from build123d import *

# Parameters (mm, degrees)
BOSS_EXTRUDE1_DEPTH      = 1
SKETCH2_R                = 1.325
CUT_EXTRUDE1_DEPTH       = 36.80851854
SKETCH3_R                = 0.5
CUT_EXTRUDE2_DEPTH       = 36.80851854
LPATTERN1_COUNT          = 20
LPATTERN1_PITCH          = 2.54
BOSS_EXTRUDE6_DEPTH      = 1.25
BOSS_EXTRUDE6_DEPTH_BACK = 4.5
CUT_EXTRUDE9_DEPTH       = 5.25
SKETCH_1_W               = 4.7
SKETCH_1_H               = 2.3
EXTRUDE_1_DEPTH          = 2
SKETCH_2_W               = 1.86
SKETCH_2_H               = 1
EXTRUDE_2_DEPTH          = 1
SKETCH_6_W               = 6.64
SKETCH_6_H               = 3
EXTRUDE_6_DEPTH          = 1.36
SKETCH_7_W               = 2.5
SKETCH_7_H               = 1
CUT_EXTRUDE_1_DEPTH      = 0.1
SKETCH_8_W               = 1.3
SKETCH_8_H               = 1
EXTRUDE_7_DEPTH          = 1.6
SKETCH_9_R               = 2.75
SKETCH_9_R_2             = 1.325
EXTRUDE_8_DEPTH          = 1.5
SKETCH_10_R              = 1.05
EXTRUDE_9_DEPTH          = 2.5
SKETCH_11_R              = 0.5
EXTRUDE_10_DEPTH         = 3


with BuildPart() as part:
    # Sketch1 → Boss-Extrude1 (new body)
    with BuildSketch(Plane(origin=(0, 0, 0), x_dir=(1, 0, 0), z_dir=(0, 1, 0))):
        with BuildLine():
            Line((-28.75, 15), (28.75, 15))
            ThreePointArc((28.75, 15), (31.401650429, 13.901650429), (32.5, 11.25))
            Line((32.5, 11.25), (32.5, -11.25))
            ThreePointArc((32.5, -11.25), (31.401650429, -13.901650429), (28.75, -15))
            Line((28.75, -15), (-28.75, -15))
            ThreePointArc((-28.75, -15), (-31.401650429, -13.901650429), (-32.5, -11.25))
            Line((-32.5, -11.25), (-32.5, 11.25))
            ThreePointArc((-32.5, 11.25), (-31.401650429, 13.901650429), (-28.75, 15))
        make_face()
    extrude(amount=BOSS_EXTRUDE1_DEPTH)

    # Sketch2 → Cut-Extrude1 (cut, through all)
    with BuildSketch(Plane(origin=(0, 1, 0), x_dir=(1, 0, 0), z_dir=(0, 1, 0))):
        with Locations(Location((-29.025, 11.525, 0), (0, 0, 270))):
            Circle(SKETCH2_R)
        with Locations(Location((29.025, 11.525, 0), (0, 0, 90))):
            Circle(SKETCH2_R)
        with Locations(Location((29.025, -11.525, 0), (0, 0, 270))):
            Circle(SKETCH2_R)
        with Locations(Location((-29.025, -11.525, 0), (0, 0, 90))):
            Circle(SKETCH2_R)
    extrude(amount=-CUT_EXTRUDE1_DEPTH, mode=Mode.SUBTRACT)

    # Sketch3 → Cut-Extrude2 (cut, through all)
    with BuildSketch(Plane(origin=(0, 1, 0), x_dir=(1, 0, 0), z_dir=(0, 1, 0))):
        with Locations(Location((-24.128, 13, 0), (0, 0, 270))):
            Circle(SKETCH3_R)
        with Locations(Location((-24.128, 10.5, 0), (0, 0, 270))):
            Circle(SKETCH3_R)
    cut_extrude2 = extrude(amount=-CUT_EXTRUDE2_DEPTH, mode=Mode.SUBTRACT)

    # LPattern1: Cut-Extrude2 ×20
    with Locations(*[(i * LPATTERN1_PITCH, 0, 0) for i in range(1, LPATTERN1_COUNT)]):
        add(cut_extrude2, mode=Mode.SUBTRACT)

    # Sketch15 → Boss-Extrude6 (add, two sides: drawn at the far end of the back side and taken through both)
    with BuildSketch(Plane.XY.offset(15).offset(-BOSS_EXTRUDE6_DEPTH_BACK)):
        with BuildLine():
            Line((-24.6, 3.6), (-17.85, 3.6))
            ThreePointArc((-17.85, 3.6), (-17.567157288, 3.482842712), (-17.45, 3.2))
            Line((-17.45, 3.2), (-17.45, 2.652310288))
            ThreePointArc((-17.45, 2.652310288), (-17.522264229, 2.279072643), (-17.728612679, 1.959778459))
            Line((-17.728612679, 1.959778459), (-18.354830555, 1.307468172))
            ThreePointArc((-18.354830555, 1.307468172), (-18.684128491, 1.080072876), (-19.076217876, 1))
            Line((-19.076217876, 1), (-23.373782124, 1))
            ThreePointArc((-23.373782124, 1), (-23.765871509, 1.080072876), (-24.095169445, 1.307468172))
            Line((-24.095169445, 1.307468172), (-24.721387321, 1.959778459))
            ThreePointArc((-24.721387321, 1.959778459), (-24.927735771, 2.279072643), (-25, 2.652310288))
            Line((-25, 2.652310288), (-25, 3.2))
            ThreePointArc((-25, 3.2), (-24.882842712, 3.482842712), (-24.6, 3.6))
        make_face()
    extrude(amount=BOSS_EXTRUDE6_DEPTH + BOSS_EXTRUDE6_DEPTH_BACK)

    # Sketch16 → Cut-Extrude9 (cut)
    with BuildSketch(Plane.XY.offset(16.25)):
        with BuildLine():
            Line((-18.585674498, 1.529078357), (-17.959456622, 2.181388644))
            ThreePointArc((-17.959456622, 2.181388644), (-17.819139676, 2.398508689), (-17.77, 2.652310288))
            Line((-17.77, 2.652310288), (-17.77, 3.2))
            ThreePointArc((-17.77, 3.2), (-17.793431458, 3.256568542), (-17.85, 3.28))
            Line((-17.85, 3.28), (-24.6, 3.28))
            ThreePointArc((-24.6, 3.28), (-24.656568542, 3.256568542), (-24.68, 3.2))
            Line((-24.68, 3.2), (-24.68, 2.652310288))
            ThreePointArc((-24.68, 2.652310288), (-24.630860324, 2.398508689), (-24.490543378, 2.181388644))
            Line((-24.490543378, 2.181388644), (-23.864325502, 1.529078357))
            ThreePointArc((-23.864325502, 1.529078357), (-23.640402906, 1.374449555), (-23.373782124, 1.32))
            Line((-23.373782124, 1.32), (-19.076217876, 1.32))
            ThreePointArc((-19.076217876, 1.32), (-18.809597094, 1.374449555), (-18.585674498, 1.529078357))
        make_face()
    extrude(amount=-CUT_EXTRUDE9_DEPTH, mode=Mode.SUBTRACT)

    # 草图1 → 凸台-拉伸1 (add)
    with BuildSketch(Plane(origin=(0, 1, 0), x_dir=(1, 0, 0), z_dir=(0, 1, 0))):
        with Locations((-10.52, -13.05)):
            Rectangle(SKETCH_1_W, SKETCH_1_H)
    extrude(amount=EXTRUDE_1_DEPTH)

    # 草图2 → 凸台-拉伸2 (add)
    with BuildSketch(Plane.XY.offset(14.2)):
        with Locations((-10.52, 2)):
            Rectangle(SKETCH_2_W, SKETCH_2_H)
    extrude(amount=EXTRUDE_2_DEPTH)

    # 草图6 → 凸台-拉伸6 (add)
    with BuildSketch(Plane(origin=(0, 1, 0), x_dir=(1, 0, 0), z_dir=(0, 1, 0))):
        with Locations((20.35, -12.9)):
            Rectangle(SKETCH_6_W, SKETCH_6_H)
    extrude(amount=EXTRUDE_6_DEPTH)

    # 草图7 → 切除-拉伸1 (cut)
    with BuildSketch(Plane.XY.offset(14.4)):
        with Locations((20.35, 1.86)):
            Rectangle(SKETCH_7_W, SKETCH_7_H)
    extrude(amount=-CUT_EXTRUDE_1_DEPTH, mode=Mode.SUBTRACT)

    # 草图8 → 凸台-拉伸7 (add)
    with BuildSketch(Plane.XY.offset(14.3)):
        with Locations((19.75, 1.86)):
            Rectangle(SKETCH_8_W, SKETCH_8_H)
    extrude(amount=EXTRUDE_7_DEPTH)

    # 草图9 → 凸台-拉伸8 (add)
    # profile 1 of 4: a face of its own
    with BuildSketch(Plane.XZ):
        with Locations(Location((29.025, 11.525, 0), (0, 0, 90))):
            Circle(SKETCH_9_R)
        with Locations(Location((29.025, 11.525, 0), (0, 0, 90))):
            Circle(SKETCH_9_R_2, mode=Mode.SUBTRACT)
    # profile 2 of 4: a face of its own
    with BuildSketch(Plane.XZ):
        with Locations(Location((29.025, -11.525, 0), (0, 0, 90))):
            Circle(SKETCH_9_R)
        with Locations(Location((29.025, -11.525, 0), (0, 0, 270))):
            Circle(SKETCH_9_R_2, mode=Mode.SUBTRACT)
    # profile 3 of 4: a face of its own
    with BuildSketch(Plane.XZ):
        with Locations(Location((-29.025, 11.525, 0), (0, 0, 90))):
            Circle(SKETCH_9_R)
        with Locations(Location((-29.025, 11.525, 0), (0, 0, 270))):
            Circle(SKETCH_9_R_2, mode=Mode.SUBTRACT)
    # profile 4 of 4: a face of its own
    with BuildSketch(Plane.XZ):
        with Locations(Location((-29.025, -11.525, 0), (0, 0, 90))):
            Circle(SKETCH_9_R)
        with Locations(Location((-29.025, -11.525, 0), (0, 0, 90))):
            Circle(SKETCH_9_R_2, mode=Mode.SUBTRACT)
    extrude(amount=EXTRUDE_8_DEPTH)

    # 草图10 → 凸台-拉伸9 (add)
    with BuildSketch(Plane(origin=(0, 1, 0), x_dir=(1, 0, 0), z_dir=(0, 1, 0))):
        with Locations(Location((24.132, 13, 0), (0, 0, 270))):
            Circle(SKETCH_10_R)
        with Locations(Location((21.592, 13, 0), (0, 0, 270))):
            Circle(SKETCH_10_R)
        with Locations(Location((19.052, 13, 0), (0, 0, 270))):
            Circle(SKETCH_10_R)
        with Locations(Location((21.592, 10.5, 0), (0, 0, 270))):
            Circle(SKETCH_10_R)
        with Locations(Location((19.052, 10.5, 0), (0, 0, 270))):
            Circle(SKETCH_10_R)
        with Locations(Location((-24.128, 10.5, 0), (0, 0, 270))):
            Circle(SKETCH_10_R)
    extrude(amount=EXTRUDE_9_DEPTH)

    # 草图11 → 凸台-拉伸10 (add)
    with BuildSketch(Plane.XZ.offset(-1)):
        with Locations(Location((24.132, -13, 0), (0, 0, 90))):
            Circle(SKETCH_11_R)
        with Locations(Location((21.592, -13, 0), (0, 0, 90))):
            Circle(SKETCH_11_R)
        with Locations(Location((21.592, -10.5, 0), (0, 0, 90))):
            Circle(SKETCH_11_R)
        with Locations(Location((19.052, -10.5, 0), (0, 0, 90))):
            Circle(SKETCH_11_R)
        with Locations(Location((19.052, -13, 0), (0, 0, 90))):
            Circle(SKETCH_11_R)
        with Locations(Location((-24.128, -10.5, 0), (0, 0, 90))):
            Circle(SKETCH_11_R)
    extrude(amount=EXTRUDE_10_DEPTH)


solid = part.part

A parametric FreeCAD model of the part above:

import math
import FreeCAD as App
import Part
import Sketcher

V = App.Vector
Q = App.Units.Quantity

doc = App.newDocument("Part")
body = doc.addObject("PartDesign::Body", "Body")

sketch1 = doc.addObject("Sketcher::SketchObject", "Sketch")
body.addObject(sketch1)
sketch1.AttachmentSupport = (doc.XZ_Plane, [""])
sketch1.MapMode = "FlatFace"
sketch1.addGeometry(Part.LineSegment(V(28.8, -15, 0), V(-28.8, -15, 0)), False)
sketch1.addGeometry(Part.ArcOfCircle(Part.Circle(V(-28.7, -11.2, 0), V(0, 0, 1), 3.8), math.radians(-180), math.radians(-90)), False)
sketch1.addGeometry(Part.LineSegment(V(-32.5, -11.2, 0), V(-32.5, 11.2, 0)), False)
sketch1.addGeometry(Part.ArcOfCircle(Part.Circle(V(-28.7, 11.2, 0), V(0, 0, 1), 3.8), math.radians(90), math.radians(180)), False)
sketch1.addGeometry(Part.LineSegment(V(-28.8, 15, 0), V(28.8, 15, 0)), False)
sketch1.addGeometry(Part.ArcOfCircle(Part.Circle(V(28.7, 11.2, 0), V(0, 0, 1), 3.8), math.radians(0), math.radians(90)), False)
sketch1.addGeometry(Part.LineSegment(V(32.5, 11.2, 0), V(32.5, -11.2, 0)), False)
sketch1.addGeometry(Part.ArcOfCircle(Part.Circle(V(28.7, -11.2, 0), V(0, 0, 1), 3.8), math.radians(-90), math.radians(0)), False)
sketch1.addConstraint(Sketcher.Constraint("Tangent", 0, 2, 1, 2))
sketch1.addConstraint(Sketcher.Constraint("Tangent", 1, 1, 2, 1))
sketch1.addConstraint(Sketcher.Constraint("Tangent", 2, 2, 3, 2))
sketch1.addConstraint(Sketcher.Constraint("Tangent", 3, 1, 4, 1))
sketch1.addConstraint(Sketcher.Constraint("Tangent", 4, 2, 5, 2))
sketch1.addConstraint(Sketcher.Constraint("Tangent", 5, 1, 6, 1))
sketch1.addConstraint(Sketcher.Constraint("Tangent", 6, 2, 7, 2))
sketch1.addConstraint(Sketcher.Constraint("Tangent", 7, 1, 0, 1))
sketch1.addConstraint(Sketcher.Constraint("Horizontal", 0))
sketch1.addConstraint(Sketcher.Constraint("Vertical", 2))
sketch1.addConstraint(Sketcher.Constraint("Horizontal", 4))
sketch1.addConstraint(Sketcher.Constraint("Vertical", 6))
sketch1.addConstraint(Sketcher.Constraint("Equal", 1, 3))
sketch1.addConstraint(Sketcher.Constraint("Equal", 3, 5))
sketch1.addConstraint(Sketcher.Constraint("Equal", 5, 7))
sketch1.addConstraint(Sketcher.Constraint("Symmetric", 1, 3, 5, 3, -1, 1))
sketch1.addConstraint(Sketcher.Constraint("Radius", 1, Q("3.75 mm")))
sketch1.addConstraint(Sketcher.Constraint("DistanceX", 0, 2, 0, 1, Q("57.5 mm")))
sketch1.addConstraint(Sketcher.Constraint("DistanceY", 2, 1, 2, 2, Q("22.5 mm")))
pad1 = doc.addObject("PartDesign::Pad", "Pad")
body.addObject(pad1)
pad1.Profile = sketch1
pad1.Length = 1
pad1.Reversed = True

sketch2 = doc.addObject("Sketcher::SketchObject", "Sketch001")
body.addObject(sketch2)
sketch2.AttachmentSupport = (doc.XZ_Plane, [""])
sketch2.MapMode = "FlatFace"
sketch2.AttachmentOffset = App.Placement(V(0, 0, -1), App.Rotation())
sketch2.addGeometry(Part.Circle(V(-29, -11.5, 0), V(0, 0, 1), 1.3), False)
sketch2.addGeometry(Part.Circle(V(29, -11.5, 0), V(0, 0, 1), 1.3), False)
sketch2.addGeometry(Part.Circle(V(29, 11.5, 0), V(0, 0, 1), 1.3), False)
sketch2.addGeometry(Part.Circle(V(-29, 11.5, 0), V(0, 0, 1), 1.3), False)
sketch2.addConstraint(Sketcher.Constraint("Equal", 0, 1))
sketch2.addConstraint(Sketcher.Constraint("Equal", 1, 2))
sketch2.addConstraint(Sketcher.Constraint("Equal", 2, 3))
sketch2.addConstraint(Sketcher.Constraint("Symmetric", 0, 3, 2, 3, -1, 1))
sketch2.addConstraint(Sketcher.Constraint("Symmetric", 1, 3, 3, 3, -1, 1))
sketch2.addConstraint(Sketcher.Constraint("Symmetric", 0, 3, 1, 3, -2))
sketch2.addConstraint(Sketcher.Constraint("Diameter", 0, Q("2.65 mm")))
sketch2.addConstraint(Sketcher.Constraint("DistanceX", 0, 3, 1, 3, Q("58.05 mm")))
sketch2.addConstraint(Sketcher.Constraint("DistanceY", 1, 3, 2, 3, Q("23.05 mm")))
pocket1 = doc.addObject("PartDesign::Pocket", "Pocket")
body.addObject(pocket1)
pocket1.Profile = sketch2
pocket1.Type = "ThroughAll"
pocket1.Reversed = True

sketch3 = doc.addObject("Sketcher::SketchObject", "Sketch002")
body.addObject(sketch3)
sketch3.AttachmentSupport = (doc.XZ_Plane, [""])
sketch3.MapMode = "FlatFace"
sketch3.AttachmentOffset = App.Placement(V(0, 0, -1), App.Rotation())
sketch3.addGeometry(Part.Circle(V(-24.1, -13, 0), V(0, 0, 1), 0.5), False)
sketch3.addGeometry(Part.Circle(V(-24.1, -10.5, 0), V(0, 0, 1), 0.5), False)
sketch3.addConstraint(Sketcher.Constraint("Equal", 0, 1))
sketch3.addConstraint(Sketcher.Constraint("Vertical", 0, 3, 1, 3))
sketch3.addConstraint(Sketcher.Constraint("Diameter", 0, Q("1 mm")))
sketch3.addConstraint(Sketcher.Constraint("DistanceY", 0, 3, -1, 1, Q("13 mm")))
sketch3.addConstraint(Sketcher.Constraint("DistanceY", 1, 3, -1, 1, Q("10.5 mm")))
sketch3.addConstraint(Sketcher.Constraint("DistanceX", 0, 3, -1, 1, Q("24.128 mm")))
pocket2 = doc.addObject("PartDesign::Pocket", "Pocket001")
body.addObject(pocket2)
pocket2.Profile = sketch3
pocket2.Type = "ThroughAll"
pocket2.Reversed = True
doc.recompute()

linearpattern = doc.addObject("PartDesign::LinearPattern", "LinearPattern")
body.addObject(linearpattern)
linearpattern.Originals = [pocket2]
linearpattern.Direction = (doc.X_Axis, [""])
linearpattern.Mode = "offset"
linearpattern.Offset = 2.54
linearpattern.Occurrences = 20
body.Tip = linearpattern

sketch4 = doc.addObject("Sketcher::SketchObject", "Sketch003")
body.addObject(sketch4)
sketch4.AttachmentSupport = (doc.XY_Plane, [""])
sketch4.MapMode = "FlatFace"
sketch4.AttachmentOffset = App.Placement(V(0, 0, 15), App.Rotation())
sketch4.addGeometry(Part.LineSegment(V(-17.85, 3.6, 0), V(-24.6, 3.6, 0)), False)
sketch4.addGeometry(Part.ArcOfCircle(Part.Circle(V(-24.6, 3.2, 0), V(0, 0, 1), 0.4), math.radians(90), math.radians(180)), False)
sketch4.addGeometry(Part.LineSegment(V(-25, 3.2, 0), V(-25, 2.65, 0)), False)
sketch4.addGeometry(Part.ArcOfCircle(Part.Circle(V(-24, 2.65, 0), V(0, 0, 1), 1), math.radians(180), math.radians(224)), False)
sketch4.addGeometry(Part.LineSegment(V(-24.72, 1.96, 0), V(-24.1, 1.31, 0)), False)
sketch4.addGeometry(Part.ArcOfCircle(Part.Circle(V(-23.37, 2, 0), V(0, 0, 1), 1), math.radians(-136), math.radians(-90)), False)
sketch4.addGeometry(Part.LineSegment(V(-23.37, 1, 0), V(-19.08, 1, 0)), False)
sketch4.addGeometry(Part.ArcOfCircle(Part.Circle(V(-19.08, 2, 0), V(0, 0, 1), 1), math.radians(-90), math.radians(-44)), False)
sketch4.addGeometry(Part.LineSegment(V(-18.35, 1.31, 0), V(-17.73, 1.96, 0)), False)
sketch4.addGeometry(Part.ArcOfCircle(Part.Circle(V(-18.45, 2.65, 0), V(0, 0, 1), 1), math.radians(-44), math.radians(0)), False)
sketch4.addGeometry(Part.LineSegment(V(-17.45, 2.65, 0), V(-17.45, 3.2, 0)), False)
sketch4.addGeometry(Part.ArcOfCircle(Part.Circle(V(-17.85, 3.2, 0), V(0, 0, 1), 0.4), math.radians(0), math.radians(90)), False)
sketch4.addConstraint(Sketcher.Constraint("Tangent", 0, 2, 1, 1))
sketch4.addConstraint(Sketcher.Constraint("Tangent", 1, 2, 2, 1))
sketch4.addConstraint(Sketcher.Constraint("Tangent", 2, 2, 3, 1))
sketch4.addConstraint(Sketcher.Constraint("Tangent", 3, 2, 4, 1))
sketch4.addConstraint(Sketcher.Constraint("Tangent", 4, 2, 5, 1))
sketch4.addConstraint(Sketcher.Constraint("Tangent", 5, 2, 6, 1))
sketch4.addConstraint(Sketcher.Constraint("Tangent", 6, 2, 7, 1))
sketch4.addConstraint(Sketcher.Constraint("Tangent", 7, 2, 8, 1))
sketch4.addConstraint(Sketcher.Constraint("Tangent", 8, 2, 9, 1))
sketch4.addConstraint(Sketcher.Constraint("Tangent", 9, 2, 10, 1))
sketch4.addConstraint(Sketcher.Constraint("Tangent", 10, 2, 11, 1))
sketch4.addConstraint(Sketcher.Constraint("Tangent", 11, 2, 0, 1))
sketch4.addConstraint(Sketcher.Constraint("Horizontal", 0))
sketch4.addConstraint(Sketcher.Constraint("Vertical", 2))
sketch4.addConstraint(Sketcher.Constraint("Horizontal", 6))
sketch4.addConstraint(Sketcher.Constraint("Vertical", 10))
sketch4.addConstraint(Sketcher.Constraint("Equal", 3, 5))
sketch4.addConstraint(Sketcher.Constraint("Equal", 5, 7))
sketch4.addConstraint(Sketcher.Constraint("Equal", 7, 9))
sketch4.addConstraint(Sketcher.Constraint("Equal", 1, 11))
sketch4.addConstraint(Sketcher.Constraint("Horizontal", 3, 3, 9, 3))
sketch4.addConstraint(Sketcher.Constraint("Horizontal", 4, 2, 7, 2))
sketch4.addConstraint(Sketcher.Constraint("Radius", 3, Q("1 mm")))
sketch4.addConstraint(Sketcher.Constraint("Radius", 1, Q("0.4 mm")))
sketch4.addConstraint(Sketcher.Constraint("DistanceX", 3, 3, -1, 1, Q("24 mm")))
sketch4.addConstraint(Sketcher.Constraint("DistanceY", -1, 1, 5, 3, Q("2 mm")))
sketch4.addConstraint(Sketcher.Constraint("DistanceX", 0, 2, 0, 1, Q("6.75 mm")))
sketch4.addConstraint(Sketcher.Constraint("DistanceY", -1, 1, 1, 3, Q("3.2 mm")))
sketch4.addConstraint(Sketcher.Constraint("DistanceY", 2, 2, 2, 1, Q("0.54769 mm")))
sketch4.addConstraint(Sketcher.Constraint("DistanceX", 6, 1, 6, 2, Q("4.297564 mm")))
pad2 = doc.addObject("PartDesign::Pad", "Pad001")
body.addObject(pad2)
pad2.Profile = sketch4
pad2.Type = "TwoLengths"
pad2.Length = 1.25
pad2.Length2 = 4.5

sketch5 = doc.addObject("Sketcher::SketchObject", "Sketch004")
body.addObject(sketch5)
sketch5.AttachmentSupport = (doc.XY_Plane, [""])
sketch5.MapMode = "FlatFace"
sketch5.AttachmentOffset = App.Placement(V(0, 0, 16.25), App.Rotation())
sketch5.addGeometry(Part.LineSegment(V(-18.59, 1.53, 0), V(-17.96, 2.18, 0)), False)
sketch5.addGeometry(Part.ArcOfCircle(Part.Circle(V(-18.45, 2.65, 0), V(0, 0, 1), 0.68), math.radians(-44), math.radians(0)), False)
sketch5.addGeometry(Part.LineSegment(V(-17.77, 2.65, 0), V(-17.77, 3.2, 0)), False)
sketch5.addGeometry(Part.ArcOfCircle(Part.Circle(V(-17.85, 3.2, 0), V(0, 0, 1), 0.08), math.radians(0), math.radians(90)), False)
sketch5.addGeometry(Part.LineSegment(V(-17.85, 3.28, 0), V(-24.6, 3.28, 0)), False)
sketch5.addGeometry(Part.ArcOfCircle(Part.Circle(V(-24.6, 3.2, 0), V(0, 0, 1), 0.08), math.radians(90), math.radians(180)), False)
sketch5.addGeometry(Part.LineSegment(V(-24.68, 3.2, 0), V(-24.68, 2.65, 0)), False)
sketch5.addGeometry(Part.ArcOfCircle(Part.Circle(V(-24, 2.65, 0), V(0, 0, 1), 0.68), math.radians(180), math.radians(224)), False)
sketch5.addGeometry(Part.LineSegment(V(-24.49, 2.18, 0), V(-23.86, 1.53, 0)), False)
sketch5.addGeometry(Part.ArcOfCircle(Part.Circle(V(-23.37, 2, 0), V(0, 0, 1), 0.68), math.radians(-136), math.radians(-90)), False)
sketch5.addGeometry(Part.LineSegment(V(-23.37, 1.32, 0), V(-19.08, 1.32, 0)), False)
sketch5.addGeometry(Part.ArcOfCircle(Part.Circle(V(-19.08, 2, 0), V(0, 0, 1), 0.68), math.radians(-90), math.radians(-44)), False)
sketch5.addConstraint(Sketcher.Constraint("Tangent", 0, 2, 1, 1))
sketch5.addConstraint(Sketcher.Constraint("Tangent", 1, 2, 2, 1))
sketch5.addConstraint(Sketcher.Constraint("Tangent", 2, 2, 3, 1))
sketch5.addConstraint(Sketcher.Constraint("Tangent", 3, 2, 4, 1))
sketch5.addConstraint(Sketcher.Constraint("Tangent", 4, 2, 5, 1))
sketch5.addConstraint(Sketcher.Constraint("Tangent", 5, 2, 6, 1))
sketch5.addConstraint(Sketcher.Constraint("Tangent", 6, 2, 7, 1))
sketch5.addConstraint(Sketcher.Constraint("Tangent", 7, 2, 8, 1))
sketch5.addConstraint(Sketcher.Constraint("Tangent", 8, 2, 9, 1))
sketch5.addConstraint(Sketcher.Constraint("Tangent", 9, 2, 10, 1))
sketch5.addConstraint(Sketcher.Constraint("Tangent", 10, 2, 11, 1))
sketch5.addConstraint(Sketcher.Constraint("Tangent", 11, 2, 0, 1))
sketch5.addConstraint(Sketcher.Constraint("Vertical", 2))
sketch5.addConstraint(Sketcher.Constraint("Horizontal", 4))
sketch5.addConstraint(Sketcher.Constraint("Vertical", 6))
sketch5.addConstraint(Sketcher.Constraint("Horizontal", 10))
sketch5.addConstraint(Sketcher.Constraint("Equal", 3, 5))
sketch5.addConstraint(Sketcher.Constraint("Equal", 1, 7))
sketch5.addConstraint(Sketcher.Constraint("Equal", 7, 9))
sketch5.addConstraint(Sketcher.Constraint("Equal", 9, 11))
sketch5.addConstraint(Sketcher.Constraint("Horizontal", 1, 3, 7, 3))
sketch5.addConstraint(Sketcher.Constraint("Horizontal", 0, 2, 7, 2))
sketch5.addConstraint(Sketcher.Constraint("Radius", 1, Q("0.68 mm")))
sketch5.addConstraint(Sketcher.Constraint("Radius", 3, Q("0.08 mm")))
sketch5.addConstraint(Sketcher.Constraint("DistanceX", 7, 3, -1, 1, Q("24 mm")))
sketch5.addConstraint(Sketcher.Constraint("DistanceY", -1, 1, 9, 3, Q("2 mm")))
sketch5.addConstraint(Sketcher.Constraint("DistanceX", 4, 2, 4, 1, Q("6.75 mm")))
sketch5.addConstraint(Sketcher.Constraint("DistanceY", -1, 1, 3, 3, Q("3.2 mm")))
sketch5.addConstraint(Sketcher.Constraint("DistanceY", 2, 1, 2, 2, Q("0.54769 mm")))
sketch5.addConstraint(Sketcher.Constraint("DistanceX", 10, 1, 10, 2, Q("4.297564 mm")))
pocket3 = doc.addObject("PartDesign::Pocket", "Pocket002")
body.addObject(pocket3)
pocket3.Profile = sketch5
pocket3.Length = 5.25

sketch6 = doc.addObject("Sketcher::SketchObject", "Sketch005")
body.addObject(sketch6)
sketch6.AttachmentSupport = (doc.XZ_Plane, [""])
sketch6.MapMode = "FlatFace"
sketch6.AttachmentOffset = App.Placement(V(0, 0, -1), App.Rotation())
sketch6.addGeometry(Part.LineSegment(V(-12.9, 11.9, 0), V(-12.9, 14.2, 0)), False)
sketch6.addGeometry(Part.LineSegment(V(-12.9, 14.2, 0), V(-8.2, 14.2, 0)), False)
sketch6.addGeometry(Part.LineSegment(V(-8.2, 14.2, 0), V(-8.2, 11.9, 0)), False)
sketch6.addGeometry(Part.LineSegment(V(-8.2, 11.9, 0), V(-12.9, 11.9, 0)), False)
sketch6.addConstraint(Sketcher.Constraint("Coincident", 0, 2, 1, 1))
sketch6.addConstraint(Sketcher.Constraint("Coincident", 1, 2, 2, 1))
sketch6.addConstraint(Sketcher.Constraint("Coincident", 2, 2, 3, 1))
sketch6.addConstraint(Sketcher.Constraint("Coincident", 3, 2, 0, 1))
sketch6.addConstraint(Sketcher.Constraint("Vertical", 0))
sketch6.addConstraint(Sketcher.Constraint("Horizontal", 1))
sketch6.addConstraint(Sketcher.Constraint("Vertical", 2))
sketch6.addConstraint(Sketcher.Constraint("Horizontal", 3))
sketch6.addConstraint(Sketcher.Constraint("DistanceX", 1, 1, 1, 2, Q("4.7 mm")))
sketch6.addConstraint(Sketcher.Constraint("DistanceY", 0, 1, 0, 2, Q("2.3 mm")))
sketch6.addConstraint(Sketcher.Constraint("DistanceY", -1, 1, 0, 2, Q("14.2 mm")))
sketch6.addConstraint(Sketcher.Constraint("DistanceX", 0, 2, -1, 1, Q("12.87 mm")))
pad3 = doc.addObject("PartDesign::Pad", "Pad002")
body.addObject(pad3)
pad3.Profile = sketch6
pad3.Length = 2
pad3.Reversed = True

sketch7 = doc.addObject("Sketcher::SketchObject", "Sketch006")
body.addObject(sketch7)
sketch7.AttachmentSupport = (doc.XY_Plane, [""])
sketch7.MapMode = "FlatFace"
sketch7.AttachmentOffset = App.Placement(V(0, 0, 14.2), App.Rotation())
sketch7.addGeometry(Part.LineSegment(V(-11.4, 2.5, 0), V(-11.4, 1.5, 0)), False)
sketch7.addGeometry(Part.LineSegment(V(-11.4, 1.5, 0), V(-9.6, 1.5, 0)), False)
sketch7.addGeometry(Part.LineSegment(V(-9.6, 1.5, 0), V(-9.6, 2.5, 0)), False)
sketch7.addGeometry(Part.LineSegment(V(-9.6, 2.5, 0), V(-11.4, 2.5, 0)), False)
sketch7.addConstraint(Sketcher.Constraint("Coincident", 0, 2, 1, 1))
sketch7.addConstraint(Sketcher.Constraint("Coincident", 1, 2, 2, 1))
sketch7.addConstraint(Sketcher.Constraint("Coincident", 2, 2, 3, 1))
sketch7.addConstraint(Sketcher.Constraint("Coincident", 3, 2, 0, 1))
sketch7.addConstraint(Sketcher.Constraint("Vertical", 0))
sketch7.addConstraint(Sketcher.Constraint("Horizontal", 1))
sketch7.addConstraint(Sketcher.Constraint("Vertical", 2))
sketch7.addConstraint(Sketcher.Constraint("Horizontal", 3))
sketch7.addConstraint(Sketcher.Constraint("DistanceY", 0, 2, 0, 1, Q("1 mm")))
sketch7.addConstraint(Sketcher.Constraint("DistanceX", 1, 1, 1, 2, Q("1.86 mm")))
sketch7.addConstraint(Sketcher.Constraint("DistanceY", -1, 1, 0, 2, Q("1.5 mm")))
sketch7.addConstraint(Sketcher.Constraint("DistanceX", 0, 2, -1, 1, Q("11.45 mm")))
pad4 = doc.addObject("PartDesign::Pad", "Pad003")
body.addObject(pad4)
pad4.Profile = sketch7
pad4.Length = 1

sketch8 = doc.addObject("Sketcher::SketchObject", "Sketch007")
body.addObject(sketch8)
sketch8.AttachmentSupport = (doc.XZ_Plane, [""])
sketch8.MapMode = "FlatFace"
sketch8.AttachmentOffset = App.Placement(V(0, 0, -1), App.Rotation())
sketch8.addGeometry(Part.LineSegment(V(17, 11.4, 0), V(17, 14.4, 0)), False)
sketch8.addGeometry(Part.LineSegment(V(17, 14.4, 0), V(23.7, 14.4, 0)), False)
sketch8.addGeometry(Part.LineSegment(V(23.7, 14.4, 0), V(23.7, 11.4, 0)), False)
sketch8.addGeometry(Part.LineSegment(V(23.7, 11.4, 0), V(17, 11.4, 0)), False)
sketch8.addConstraint(Sketcher.Constraint("Coincident", 0, 2, 1, 1))
sketch8.addConstraint(Sketcher.Constraint("Coincident", 1, 2, 2, 1))
sketch8.addConstraint(Sketcher.Constraint("Coincident", 2, 2, 3, 1))
sketch8.addConstraint(Sketcher.Constraint("Coincident", 3, 2, 0, 1))
sketch8.addConstraint(Sketcher.Constraint("Vertical", 0))
sketch8.addConstraint(Sketcher.Constraint("Horizontal", 1))
sketch8.addConstraint(Sketcher.Constraint("Vertical", 2))
sketch8.addConstraint(Sketcher.Constraint("Horizontal", 3))
sketch8.addConstraint(Sketcher.Constraint("DistanceY", 0, 1, 0, 2, Q("3 mm")))
sketch8.addConstraint(Sketcher.Constraint("DistanceX", 1, 1, 1, 2, Q("6.64 mm")))
sketch8.addConstraint(Sketcher.Constraint("DistanceY", -1, 1, 0, 2, Q("14.4 mm")))
sketch8.addConstraint(Sketcher.Constraint("DistanceX", -1, 1, 0, 2, Q("17.03 mm")))
pad5 = doc.addObject("PartDesign::Pad", "Pad004")
body.addObject(pad5)
pad5.Profile = sketch8
pad5.Length = 1.36
pad5.Reversed = True

sketch9 = doc.addObject("Sketcher::SketchObject", "Sketch008")
body.addObject(sketch9)
sketch9.AttachmentSupport = (doc.XY_Plane, [""])
sketch9.MapMode = "FlatFace"
sketch9.AttachmentOffset = App.Placement(V(0, 0, 14.4), App.Rotation())
sketch9.addGeometry(Part.LineSegment(V(19.1, 2.4, 0), V(19.1, 1.4, 0)), False)
sketch9.addGeometry(Part.LineSegment(V(19.1, 1.4, 0), V(21.6, 1.4, 0)), False)
sketch9.addGeometry(Part.LineSegment(V(21.6, 1.4, 0), V(21.6, 2.4, 0)), False)
sketch9.addGeometry(Part.LineSegment(V(21.6, 2.4, 0), V(19.1, 2.4, 0)), False)
sketch9.addConstraint(Sketcher.Constraint("Coincident", 0, 2, 1, 1))
sketch9.addConstraint(Sketcher.Constraint("Coincident", 1, 2, 2, 1))
sketch9.addConstraint(Sketcher.Constraint("Coincident", 2, 2, 3, 1))
sketch9.addConstraint(Sketcher.Constraint("Coincident", 3, 2, 0, 1))
sketch9.addConstraint(Sketcher.Constraint("Vertical", 0))
sketch9.addConstraint(Sketcher.Constraint("Horizontal", 1))
sketch9.addConstraint(Sketcher.Constraint("Vertical", 2))
sketch9.addConstraint(Sketcher.Constraint("Horizontal", 3))
sketch9.addConstraint(Sketcher.Constraint("DistanceY", 0, 2, 0, 1, Q("1 mm")))
sketch9.addConstraint(Sketcher.Constraint("DistanceX", 1, 1, 1, 2, Q("2.5 mm")))
sketch9.addConstraint(Sketcher.Constraint("DistanceX", -1, 1, 0, 2, Q("19.1 mm")))
sketch9.addConstraint(Sketcher.Constraint("DistanceY", -1, 1, 0, 2, Q("1.36 mm")))
pocket4 = doc.addObject("PartDesign::Pocket", "Pocket003")
body.addObject(pocket4)
pocket4.Profile = sketch9
pocket4.Length = 0.1

sketch10 = doc.addObject("Sketcher::SketchObject", "Sketch009")
body.addObject(sketch10)
sketch10.AttachmentSupport = (doc.XY_Plane, [""])
sketch10.MapMode = "FlatFace"
sketch10.AttachmentOffset = App.Placement(V(0, 0, 14.3), App.Rotation())
sketch10.addGeometry(Part.LineSegment(V(19.1, 2.4, 0), V(19.1, 1.4, 0)), False)
sketch10.addGeometry(Part.LineSegment(V(19.1, 1.4, 0), V(20.4, 1.4, 0)), False)
sketch10.addGeometry(Part.LineSegment(V(20.4, 1.4, 0), V(20.4, 2.4, 0)), False)
sketch10.addGeometry(Part.LineSegment(V(20.4, 2.4, 0), V(19.1, 2.4, 0)), False)
sketch10.addConstraint(Sketcher.Constraint("Coincident", 0, 2, 1, 1))
sketch10.addConstraint(Sketcher.Constraint("Coincident", 1, 2, 2, 1))
sketch10.addConstraint(Sketcher.Constraint("Coincident", 2, 2, 3, 1))
sketch10.addConstraint(Sketcher.Constraint("Coincident", 3, 2, 0, 1))
sketch10.addConstraint(Sketcher.Constraint("Vertical", 0))
sketch10.addConstraint(Sketcher.Constraint("Horizontal", 1))
sketch10.addConstraint(Sketcher.Constraint("Vertical", 2))
sketch10.addConstraint(Sketcher.Constraint("Horizontal", 3))
sketch10.addConstraint(Sketcher.Constraint("DistanceY", 0, 2, 0, 1, Q("1 mm")))
sketch10.addConstraint(Sketcher.Constraint("DistanceX", 1, 1, 1, 2, Q("1.3 mm")))
sketch10.addConstraint(Sketcher.Constraint("DistanceX", -1, 1, 0, 2, Q("19.1 mm")))
sketch10.addConstraint(Sketcher.Constraint("DistanceY", -1, 1, 0, 2, Q("1.36 mm")))
pad6 = doc.addObject("PartDesign::Pad", "Pad005")
body.addObject(pad6)
pad6.Profile = sketch10
pad6.Length = 1.6

sketch11 = doc.addObject("Sketcher::SketchObject", "Sketch010")
body.addObject(sketch11)
sketch11.AttachmentSupport = (doc.XZ_Plane, [""])
sketch11.MapMode = "FlatFace"
sketch11.addGeometry(Part.Circle(V(29, 11.5, 0), V(0, 0, 1), 2.8), False)
sketch11.addGeometry(Part.Circle(V(29, 11.5, 0), V(0, 0, 1), 1.3), False)
sketch11.addGeometry(Part.Circle(V(29, -11.5, 0), V(0, 0, 1), 2.8), False)
sketch11.addGeometry(Part.Circle(V(29, -11.5, 0), V(0, 0, 1), 1.3), False)
sketch11.addGeometry(Part.Circle(V(-29, 11.5, 0), V(0, 0, 1), 2.8), False)
sketch11.addGeometry(Part.Circle(V(-29, 11.5, 0), V(0, 0, 1), 1.3), False)
sketch11.addGeometry(Part.Circle(V(-29, -11.5, 0), V(0, 0, 1), 2.8), False)
sketch11.addGeometry(Part.Circle(V(-29, -11.5, 0), V(0, 0, 1), 1.3), False)
sketch11.addConstraint(Sketcher.Constraint("Coincident", 1, 3, 0, 3))
sketch11.addConstraint(Sketcher.Constraint("Coincident", 3, 3, 2, 3))
sketch11.addConstraint(Sketcher.Constraint("Coincident", 5, 3, 4, 3))
sketch11.addConstraint(Sketcher.Constraint("Coincident", 7, 3, 6, 3))
sketch11.addConstraint(Sketcher.Constraint("Equal", 0, 2))
sketch11.addConstraint(Sketcher.Constraint("Equal", 1, 3))
sketch11.addConstraint(Sketcher.Constraint("Equal", 2, 4))
sketch11.addConstraint(Sketcher.Constraint("Equal", 3, 5))
sketch11.addConstraint(Sketcher.Constraint("Equal", 4, 6))
sketch11.addConstraint(Sketcher.Constraint("Equal", 5, 7))
sketch11.addConstraint(Sketcher.Constraint("Symmetric", 2, 3, 4, 3, -1, 1))
sketch11.addConstraint(Sketcher.Constraint("Symmetric", 0, 3, 6, 3, -1, 1))
sketch11.addConstraint(Sketcher.Constraint("Symmetric", 0, 3, 4, 3, -2))
sketch11.addConstraint(Sketcher.Constraint("Diameter", 0, Q("5.5 mm")))
sketch11.addConstraint(Sketcher.Constraint("Diameter", 1, Q("2.65 mm")))
sketch11.addConstraint(Sketcher.Constraint("DistanceY", 2, 3, 0, 3, Q("23.05 mm")))
sketch11.addConstraint(Sketcher.Constraint("DistanceX", 4, 3, 0, 3, Q("58.05 mm")))
pad7 = doc.addObject("PartDesign::Pad", "Pad006")
body.addObject(pad7)
pad7.Profile = sketch11
pad7.Length = 1.5

sketch12 = doc.addObject("Sketcher::SketchObject", "Sketch011")
body.addObject(sketch12)
sketch12.AttachmentSupport = (doc.XZ_Plane, [""])
sketch12.MapMode = "FlatFace"
sketch12.AttachmentOffset = App.Placement(V(0, 0, -1), App.Rotation())
sketch12.addGeometry(Part.Circle(V(24.1, -13, 0), V(0, 0, 1), 1.1), False)
sketch12.addGeometry(Part.Circle(V(21.6, -13, 0), V(0, 0, 1), 1.1), False)
sketch12.addGeometry(Part.Circle(V(19.1, -13, 0), V(0, 0, 1), 1.1), False)
sketch12.addGeometry(Part.Circle(V(21.6, -10.5, 0), V(0, 0, 1), 1.1), False)
sketch12.addGeometry(Part.Circle(V(19.1, -10.5, 0), V(0, 0, 1), 1.1), False)
sketch12.addGeometry(Part.Circle(V(-24.1, -10.5, 0), V(0, 0, 1), 1.1), False)
sketch12.addConstraint(Sketcher.Constraint("Equal", 0, 1))
sketch12.addConstraint(Sketcher.Constraint("Equal", 1, 2))
sketch12.addConstraint(Sketcher.Constraint("Equal", 2, 3))
sketch12.addConstraint(Sketcher.Constraint("Equal", 3, 4))
sketch12.addConstraint(Sketcher.Constraint("Equal", 4, 5))
sketch12.addConstraint(Sketcher.Constraint("Horizontal", 0, 3, 1, 3))
sketch12.addConstraint(Sketcher.Constraint("Horizontal", 1, 3, 2, 3))
sketch12.addConstraint(Sketcher.Constraint("Horizontal", 3, 3, 4, 3))
sketch12.addConstraint(Sketcher.Constraint("Horizontal", 4, 3, 5, 3))
sketch12.addConstraint(Sketcher.Constraint("Vertical", 1, 3, 3, 3))
sketch12.addConstraint(Sketcher.Constraint("Vertical", 2, 3, 4, 3))
sketch12.addConstraint(Sketcher.Constraint("Diameter", 0, Q("2.1 mm")))
sketch12.addConstraint(Sketcher.Constraint("DistanceY", 0, 3, -1, 1, Q("13 mm")))
sketch12.addConstraint(Sketcher.Constraint("DistanceY", 3, 3, -1, 1, Q("10.5 mm")))
sketch12.addConstraint(Sketcher.Constraint("DistanceX", 1, 3, 0, 3, Q("2.54 mm")))
sketch12.addConstraint(Sketcher.Constraint("DistanceX", 2, 3, 1, 3, Q("2.54 mm")))
sketch12.addConstraint(Sketcher.Constraint("DistanceX", 5, 3, 4, 3, Q("43.18 mm")))
sketch12.addConstraint(Sketcher.Constraint("DistanceX", -1, 1, 0, 3, Q("24.132 mm")))
pad8 = doc.addObject("PartDesign::Pad", "Pad007")
body.addObject(pad8)
pad8.Profile = sketch12
pad8.Length = 2.5
pad8.Reversed = True

sketch13 = doc.addObject("Sketcher::SketchObject", "Sketch012")
body.addObject(sketch13)
sketch13.AttachmentSupport = (doc.XZ_Plane, [""])
sketch13.MapMode = "FlatFace"
sketch13.AttachmentOffset = App.Placement(V(0, 0, -1), App.Rotation())
sketch13.addGeometry(Part.Circle(V(24.1, -13, 0), V(0, 0, 1), 0.5), False)
sketch13.addGeometry(Part.Circle(V(21.6, -13, 0), V(0, 0, 1), 0.5), False)
sketch13.addGeometry(Part.Circle(V(21.6, -10.5, 0), V(0, 0, 1), 0.5), False)
sketch13.addGeometry(Part.Circle(V(19.1, -10.5, 0), V(0, 0, 1), 0.5), False)
sketch13.addGeometry(Part.Circle(V(19.1, -13, 0), V(0, 0, 1), 0.5), False)
sketch13.addGeometry(Part.Circle(V(-24.1, -10.5, 0), V(0, 0, 1), 0.5), False)
sketch13.addConstraint(Sketcher.Constraint("Equal", 0, 1))
sketch13.addConstraint(Sketcher.Constraint("Equal", 1, 2))
sketch13.addConstraint(Sketcher.Constraint("Equal", 2, 3))
sketch13.addConstraint(Sketcher.Constraint("Equal", 3, 4))
sketch13.addConstraint(Sketcher.Constraint("Equal", 4, 5))
sketch13.addConstraint(Sketcher.Constraint("Horizontal", 0, 3, 1, 3))
sketch13.addConstraint(Sketcher.Constraint("Horizontal", 2, 3, 3, 3))
sketch13.addConstraint(Sketcher.Constraint("Horizontal", 1, 3, 4, 3))
sketch13.addConstraint(Sketcher.Constraint("Horizontal", 3, 3, 5, 3))
sketch13.addConstraint(Sketcher.Constraint("Vertical", 1, 3, 2, 3))
sketch13.addConstraint(Sketcher.Constraint("Vertical", 3, 3, 4, 3))
sketch13.addConstraint(Sketcher.Constraint("Diameter", 0, Q("1 mm")))
sketch13.addConstraint(Sketcher.Constraint("DistanceY", 0, 3, -1, 1, Q("13 mm")))
sketch13.addConstraint(Sketcher.Constraint("DistanceY", 2, 3, -1, 1, Q("10.5 mm")))
sketch13.addConstraint(Sketcher.Constraint("DistanceX", 1, 3, 0, 3, Q("2.54 mm")))
sketch13.addConstraint(Sketcher.Constraint("DistanceX", 3, 3, 2, 3, Q("2.54 mm")))
sketch13.addConstraint(Sketcher.Constraint("DistanceX", 5, 3, 3, 3, Q("43.18 mm")))
sketch13.addConstraint(Sketcher.Constraint("DistanceX", -1, 1, 0, 3, Q("24.132 mm")))
pad9 = doc.addObject("PartDesign::Pad", "Pad008")
body.addObject(pad9)
pad9.Profile = sketch13
pad9.Length = 3

doc.recompute()
